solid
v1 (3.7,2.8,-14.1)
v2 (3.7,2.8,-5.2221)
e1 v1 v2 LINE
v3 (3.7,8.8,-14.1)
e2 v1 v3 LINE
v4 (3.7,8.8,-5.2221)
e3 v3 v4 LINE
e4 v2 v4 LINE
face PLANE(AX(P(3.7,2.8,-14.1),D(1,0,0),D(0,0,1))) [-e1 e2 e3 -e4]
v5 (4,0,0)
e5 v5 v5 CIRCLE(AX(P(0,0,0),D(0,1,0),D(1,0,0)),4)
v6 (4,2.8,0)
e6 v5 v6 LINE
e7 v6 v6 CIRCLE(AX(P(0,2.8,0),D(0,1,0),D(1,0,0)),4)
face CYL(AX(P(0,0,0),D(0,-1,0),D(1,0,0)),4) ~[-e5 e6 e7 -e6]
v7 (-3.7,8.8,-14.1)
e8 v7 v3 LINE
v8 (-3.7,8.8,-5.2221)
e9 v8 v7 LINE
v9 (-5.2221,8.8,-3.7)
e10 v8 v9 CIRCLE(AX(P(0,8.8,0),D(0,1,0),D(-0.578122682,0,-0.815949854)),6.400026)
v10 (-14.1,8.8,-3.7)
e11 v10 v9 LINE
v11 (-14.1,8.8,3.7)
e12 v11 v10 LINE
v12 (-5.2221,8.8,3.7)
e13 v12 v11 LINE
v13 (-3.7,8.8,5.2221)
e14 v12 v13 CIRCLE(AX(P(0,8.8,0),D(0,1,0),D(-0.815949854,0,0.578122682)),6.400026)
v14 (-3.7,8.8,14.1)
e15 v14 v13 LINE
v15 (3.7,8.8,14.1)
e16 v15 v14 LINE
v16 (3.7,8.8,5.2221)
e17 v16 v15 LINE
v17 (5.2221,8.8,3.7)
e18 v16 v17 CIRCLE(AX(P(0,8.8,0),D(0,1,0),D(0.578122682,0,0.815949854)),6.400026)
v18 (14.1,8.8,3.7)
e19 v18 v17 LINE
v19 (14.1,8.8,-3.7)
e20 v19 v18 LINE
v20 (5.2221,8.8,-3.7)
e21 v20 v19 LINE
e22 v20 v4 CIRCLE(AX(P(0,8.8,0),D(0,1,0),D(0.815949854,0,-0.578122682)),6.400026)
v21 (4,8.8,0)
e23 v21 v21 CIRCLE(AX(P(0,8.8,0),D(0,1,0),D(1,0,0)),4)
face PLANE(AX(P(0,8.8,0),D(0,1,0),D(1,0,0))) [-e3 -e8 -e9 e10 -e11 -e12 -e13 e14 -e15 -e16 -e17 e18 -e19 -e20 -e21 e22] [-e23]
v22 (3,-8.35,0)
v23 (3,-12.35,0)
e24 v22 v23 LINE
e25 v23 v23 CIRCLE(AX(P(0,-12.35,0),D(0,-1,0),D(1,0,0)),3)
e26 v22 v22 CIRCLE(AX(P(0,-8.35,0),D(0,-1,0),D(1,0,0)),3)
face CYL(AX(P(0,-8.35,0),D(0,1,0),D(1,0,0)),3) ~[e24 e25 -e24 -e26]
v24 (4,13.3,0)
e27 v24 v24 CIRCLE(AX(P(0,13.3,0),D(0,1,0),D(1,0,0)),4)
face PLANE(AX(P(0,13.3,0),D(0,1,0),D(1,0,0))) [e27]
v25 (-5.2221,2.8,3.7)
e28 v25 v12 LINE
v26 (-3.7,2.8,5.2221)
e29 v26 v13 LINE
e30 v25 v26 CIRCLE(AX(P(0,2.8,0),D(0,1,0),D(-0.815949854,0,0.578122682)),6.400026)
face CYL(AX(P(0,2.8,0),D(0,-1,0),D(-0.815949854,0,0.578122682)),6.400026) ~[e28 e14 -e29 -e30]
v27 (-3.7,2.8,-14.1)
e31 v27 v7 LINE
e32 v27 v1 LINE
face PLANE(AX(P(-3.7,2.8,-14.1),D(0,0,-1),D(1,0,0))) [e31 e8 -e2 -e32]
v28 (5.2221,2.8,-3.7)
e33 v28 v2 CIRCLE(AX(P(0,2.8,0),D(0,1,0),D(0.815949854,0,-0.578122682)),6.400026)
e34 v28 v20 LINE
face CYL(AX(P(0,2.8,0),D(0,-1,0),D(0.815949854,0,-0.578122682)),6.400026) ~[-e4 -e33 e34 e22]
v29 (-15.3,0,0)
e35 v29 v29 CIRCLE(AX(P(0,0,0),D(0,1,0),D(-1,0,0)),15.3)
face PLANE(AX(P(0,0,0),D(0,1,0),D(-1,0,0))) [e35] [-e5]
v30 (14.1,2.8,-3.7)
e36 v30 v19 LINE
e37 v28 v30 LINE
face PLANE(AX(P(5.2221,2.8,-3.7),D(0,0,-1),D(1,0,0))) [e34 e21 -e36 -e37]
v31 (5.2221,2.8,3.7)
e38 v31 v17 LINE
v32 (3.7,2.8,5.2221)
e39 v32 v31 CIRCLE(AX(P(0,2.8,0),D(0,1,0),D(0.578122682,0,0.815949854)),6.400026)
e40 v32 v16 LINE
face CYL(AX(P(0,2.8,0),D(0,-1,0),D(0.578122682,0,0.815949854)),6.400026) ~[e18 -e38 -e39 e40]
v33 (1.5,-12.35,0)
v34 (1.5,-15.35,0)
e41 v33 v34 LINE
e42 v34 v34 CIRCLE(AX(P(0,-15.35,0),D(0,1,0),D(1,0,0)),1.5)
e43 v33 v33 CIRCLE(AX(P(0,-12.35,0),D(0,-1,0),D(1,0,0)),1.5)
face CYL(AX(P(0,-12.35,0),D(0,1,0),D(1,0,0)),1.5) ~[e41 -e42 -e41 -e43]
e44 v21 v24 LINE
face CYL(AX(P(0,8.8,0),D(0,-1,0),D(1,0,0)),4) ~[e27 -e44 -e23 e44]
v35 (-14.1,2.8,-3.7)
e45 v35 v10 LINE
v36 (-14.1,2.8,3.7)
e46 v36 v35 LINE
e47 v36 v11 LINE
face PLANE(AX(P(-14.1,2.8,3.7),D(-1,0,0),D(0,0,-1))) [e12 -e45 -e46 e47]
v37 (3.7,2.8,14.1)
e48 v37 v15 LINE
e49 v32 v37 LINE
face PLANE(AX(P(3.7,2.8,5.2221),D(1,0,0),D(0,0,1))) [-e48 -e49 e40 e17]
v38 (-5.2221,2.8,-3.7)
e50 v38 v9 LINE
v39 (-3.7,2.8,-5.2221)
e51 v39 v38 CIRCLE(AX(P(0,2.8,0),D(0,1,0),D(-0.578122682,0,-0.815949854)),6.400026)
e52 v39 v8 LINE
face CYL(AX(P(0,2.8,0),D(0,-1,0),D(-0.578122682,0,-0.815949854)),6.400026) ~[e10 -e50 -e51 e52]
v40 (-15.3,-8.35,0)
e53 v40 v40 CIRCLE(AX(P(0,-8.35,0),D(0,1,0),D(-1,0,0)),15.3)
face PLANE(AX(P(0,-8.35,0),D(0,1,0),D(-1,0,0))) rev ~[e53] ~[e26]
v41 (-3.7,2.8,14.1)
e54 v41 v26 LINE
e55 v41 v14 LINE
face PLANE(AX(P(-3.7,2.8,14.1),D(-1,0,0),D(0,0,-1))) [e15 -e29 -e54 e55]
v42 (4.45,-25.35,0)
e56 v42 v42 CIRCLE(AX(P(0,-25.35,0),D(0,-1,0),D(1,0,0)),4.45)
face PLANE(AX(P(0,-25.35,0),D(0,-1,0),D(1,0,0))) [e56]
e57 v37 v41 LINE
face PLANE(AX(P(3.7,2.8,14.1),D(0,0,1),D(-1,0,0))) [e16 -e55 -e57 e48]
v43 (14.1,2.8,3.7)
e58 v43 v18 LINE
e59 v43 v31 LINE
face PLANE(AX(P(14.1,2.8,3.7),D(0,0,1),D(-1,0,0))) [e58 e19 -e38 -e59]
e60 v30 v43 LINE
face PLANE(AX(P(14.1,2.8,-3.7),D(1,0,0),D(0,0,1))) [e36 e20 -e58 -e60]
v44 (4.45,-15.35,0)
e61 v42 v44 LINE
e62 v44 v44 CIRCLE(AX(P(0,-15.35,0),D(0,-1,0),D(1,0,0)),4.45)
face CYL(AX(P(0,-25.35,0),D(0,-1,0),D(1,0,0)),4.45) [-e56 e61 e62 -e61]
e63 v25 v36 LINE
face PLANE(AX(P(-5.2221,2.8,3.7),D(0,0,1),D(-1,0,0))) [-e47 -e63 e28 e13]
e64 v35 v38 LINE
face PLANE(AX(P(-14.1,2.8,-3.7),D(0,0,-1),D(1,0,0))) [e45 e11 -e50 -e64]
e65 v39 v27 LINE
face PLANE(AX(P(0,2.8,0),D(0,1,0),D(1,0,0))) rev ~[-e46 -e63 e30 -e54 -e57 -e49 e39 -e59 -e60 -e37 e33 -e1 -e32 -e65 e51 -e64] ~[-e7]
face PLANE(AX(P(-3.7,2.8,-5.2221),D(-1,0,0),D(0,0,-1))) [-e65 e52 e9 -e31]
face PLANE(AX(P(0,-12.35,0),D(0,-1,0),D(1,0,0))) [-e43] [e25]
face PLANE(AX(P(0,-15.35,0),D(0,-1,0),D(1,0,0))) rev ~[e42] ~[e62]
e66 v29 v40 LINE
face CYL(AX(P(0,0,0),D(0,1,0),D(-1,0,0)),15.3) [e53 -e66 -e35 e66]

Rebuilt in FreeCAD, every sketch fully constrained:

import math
import FreeCAD as App
import Part
import Sketcher
from FreeCAD import Vector

doc = App.newDocument("Part")
params = doc.addObject("Spreadsheet::Sheet", "Params")
for row, (alias, value) in enumerate([
    ("sketch1_diameter", "30.6 mm"),
    ("pad1_length", "8.35 mm"),
    ("sketch2_diameter", "8 mm"),
    ("pad2_length", "2.8 mm"),
    ("sketch3_width", "7.4 mm"),
    ("sketch3_radius", "6.4 mm"),
    ("pad3_length", "6 mm"),
    ("sketch4_diameter", "8 mm"),
    ("pad4_length", "4.5 mm"),
    ("sketch5_diameter", "6 mm"),
    ("pad5_length", "4 mm"),
    ("sketch6_diameter", "3 mm"),
    ("pad6_length", "13 mm"),
    ("sketch7_diameter", "8.9 mm"),
    ("pad7_length", "10 mm"),
], start=1):
    params.set(f"A{row}", alias)
    params.set(f"B{row}", "=" + value)
    params.setAlias(f"B{row}", alias)

body = doc.addObject("PartDesign::Body", "Body")

# Sketch on XZ plane
sketch1 = doc.addObject("Sketcher::SketchObject", "Sketch")
body.addObject(sketch1)
sketch1.AttachmentSupport = (doc.XZ_Plane, [""])
sketch1.MapMode = "FlatFace"
sketch1.addGeometry(Part.Circle(Vector(0, 0, 0), Vector(0, 0, 1), 15.3), False)
sketch1.addConstraint([
    Sketcher.Constraint("Coincident", 0, 3, -1, 1),
    Sketcher.Constraint("Diameter", 0, 30.6),
])
sketch1.setExpression("Constraints[1]", "Params.sketch1_diameter")
pad1 = doc.addObject("PartDesign::Pad", "Pad")
body.addObject(pad1)
pad1.Profile = sketch1
pad1.setExpression("Length", "Params.pad1_length")

# Sketch on XZ plane
sketch2 = doc.addObject("Sketcher::SketchObject", "Sketch001")
body.addObject(sketch2)
sketch2.AttachmentSupport = (doc.XZ_Plane, [""])
sketch2.MapMode = "FlatFace"
sketch2.addGeometry(Part.Circle(Vector(0, 0, 0), Vector(0, 0, 1), 4), False)
sketch2.addConstraint([
    Sketcher.Constraint("Coincident", 0, 3, -1, 1),
    Sketcher.Constraint("Diameter", 0, 8.0),
])
sketch2.setExpression("Constraints[1]", "Params.sketch2_diameter")
pad2 = doc.addObject("PartDesign::Pad", "Pad001")
body.addObject(pad2)
pad2.Profile = sketch2
pad2.setExpression("Length", "Params.pad2_length")
pad2.Reversed = True

# Sketch on XZ plane
sketch3 = doc.addObject("Sketcher::SketchObject", "Sketch002")
body.addObject(sketch3)
sketch3.AttachmentSupport = (doc.XZ_Plane, [""])
sketch3.MapMode = "FlatFace"
sketch3.AttachmentOffset = App.Placement(Vector(0, 0, -2.8), App.Rotation())
sketch3.addGeometry([
    Part.LineSegment(Vector(3.7, -14.1, 0), Vector(-3.7, -14.1, 0)),  # 0
    Part.LineSegment(Vector(-3.7, -14.1, 0), Vector(-3.7, -5.2221, 0)),  # 1
    Part.ArcOfCircle(Part.Circle(Vector(0, 0, 0), Vector(0, 0, 1), 6.400026), math.radians(-144.68139), math.radians(-125.31861)),  # 2
    Part.LineSegment(Vector(-5.2221, -3.7, 0), Vector(-14.1, -3.7, 0)),  # 3
    Part.LineSegment(Vector(-14.1, -3.7, 0), Vector(-14.1, 3.7, 0)),  # 4
    Part.LineSegment(Vector(-14.1, 3.7, 0), Vector(-5.2221, 3.7, 0)),  # 5
    Part.ArcOfCircle(Part.Circle(Vector(0, 0, 0), Vector(0, 0, 1), 6.400026), math.radians(125.31861), math.radians(144.68139)),  # 6
    Part.LineSegment(Vector(-3.7, 5.2221, 0), Vector(-3.7, 14.1, 0)),  # 7
    Part.LineSegment(Vector(-3.7, 14.1, 0), Vector(3.7, 14.1, 0)),  # 8
    Part.LineSegment(Vector(3.7, 14.1, 0), Vector(3.7, 5.2221, 0)),  # 9
    Part.ArcOfCircle(Part.Circle(Vector(0, 0, 0), Vector(0, 0, 1), 6.400026), math.radians(35.31861), math.radians(54.68139)),  # 10
    Part.LineSegment(Vector(5.2221, 3.7, 0), Vector(14.1, 3.7, 0)),  # 11
    Part.LineSegment(Vector(14.1, 3.7, 0), Vector(14.1, -3.7, 0)),  # 12
    Part.LineSegment(Vector(14.1, -3.7, 0), Vector(5.2221, -3.7, 0)),  # 13
    Part.ArcOfCircle(Part.Circle(Vector(0, 0, 0), Vector(0, 0, 1), 6.400026), math.radians(-54.68139), math.radians(-35.31861)),  # 14
    Part.LineSegment(Vector(3.7, -5.2221, 0), Vector(3.7, -14.1, 0)),  # 15
], False)
sketch3.addConstraint([
    Sketcher.Constraint("Coincident", 0, 2, 1, 1),
    Sketcher.Constraint("Coincident", 1, 2, 2, 2),
    Sketcher.Constraint("Coincident", 2, 1, 3, 1),
    Sketcher.Constraint("Coincident", 3, 2, 4, 1),
    Sketcher.Constraint("Coincident", 4, 2, 5, 1),
    Sketcher.Constraint("Coincident", 5, 2, 6, 2),
    Sketcher.Constraint("Coincident", 6, 1, 7, 1),
    Sketcher.Constraint("Coincident", 7, 2, 8, 1),
    Sketcher.Constraint("Coincident", 8, 2, 9, 1),
    Sketcher.Constraint("Coincident", 9, 2, 10, 2),
    Sketcher.Constraint("Coincident", 10, 1, 11, 1),
    Sketcher.Constraint("Coincident", 11, 2, 12, 1),
    Sketcher.Constraint("Coincident", 12, 2, 13, 1),
    Sketcher.Constraint("Coincident", 13, 2, 14, 2),
    Sketcher.Constraint("Coincident", 14, 1, 15, 1),
    Sketcher.Constraint("Coincident", 15, 2, 0, 1),
    Sketcher.Constraint("Horizontal", 0),
    Sketcher.Constraint("Vertical", 1),
    Sketcher.Constraint("Horizontal", 3),
    Sketcher.Constraint("Vertical", 4),
    Sketcher.Constraint("Horizontal", 5),
    Sketcher.Constraint("Vertical", 7),
    Sketcher.Constraint("Horizontal", 8),
    Sketcher.Constraint("Vertical", 9),
    Sketcher.Constraint("Horizontal", 11),
    Sketcher.Constraint("Vertical", 12),
    Sketcher.Constraint("Horizontal", 13),
    Sketcher.Constraint("Vertical", 15),
    Sketcher.Constraint("Coincident", 2, 3, -1, 1),
    Sketcher.Constraint("Coincident", 6, 3, -1, 1),
    Sketcher.Constraint("Coincident", 10, 3, -1, 1),
    Sketcher.Constraint("Coincident", 14, 3, -1, 1),
    Sketcher.Constraint("Equal", 2, 6),
    Sketcher.Constraint("Equal", 6, 10),
    Sketcher.Constraint("Equal", 10, 14),
    Sketcher.Constraint("Symmetric", 0, 2, 8, 2, -1, 1),
    Sketcher.Constraint("Symmetric", 3, 2, 11, 2, -1, 1),
    Sketcher.Constraint("Horizontal", 6, 1, 9, 2),
    Sketcher.Constraint("Horizontal", 5, 2, 10, 1),
    Sketcher.Constraint("Horizontal", 3, 2, 12, 2),
    Sketcher.Constraint("Horizontal", 1, 2, 14, 1),
    Sketcher.Constraint("Equal", 13, 1),
    Sketcher.Constraint("Equal", 8, 4),
    Sketcher.Constraint("DistanceX", 0, 2, 0, 1, 7.4),
    Sketcher.Constraint("Radius", 2, 6.4),
    Sketcher.Constraint("DistanceY", 0, 2, -1, 1, 14.1),
])
sketch3.setExpression("Constraints[43]", "Params.sketch3_width")
sketch3.setExpression("Constraints[44]", "Params.sketch3_radius")
pad3 = doc.addObject("PartDesign::Pad", "Pad002")
body.addObject(pad3)
pad3.Profile = sketch3
pad3.setExpression("Length", "Params.pad3_length")
pad3.Reversed = True

# Sketch on XZ plane
sketch4 = doc.addObject("Sketcher::SketchObject", "Sketch003")
body.addObject(sketch4)
sketch4.AttachmentSupport = (doc.XZ_Plane, [""])
sketch4.MapMode = "FlatFace"
sketch4.AttachmentOffset = App.Placement(Vector(0, 0, -8.8), App.Rotation())
sketch4.addGeometry(Part.Circle(Vector(0, 0, 0), Vector(0, 0, 1), 4), False)
sketch4.addConstraint([
    Sketcher.Constraint("Coincident", 0, 3, -1, 1),
    Sketcher.Constraint("Diameter", 0, 8.0),
])
sketch4.setExpression("Constraints[1]", "Params.sketch4_diameter")
pad4 = doc.addObject("PartDesign::Pad", "Pad003")
body.addObject(pad4)
pad4.Profile = sketch4
pad4.setExpression("Length", "Params.pad4_length")
pad4.Reversed = True

# Sketch on XZ plane
sketch5 = doc.addObject("Sketcher::SketchObject", "Sketch004")
body.addObject(sketch5)
sketch5.AttachmentSupport = (doc.XZ_Plane, [""])
sketch5.MapMode = "FlatFace"
sketch5.AttachmentOffset = App.Placement(Vector(0, 0, 8.35), App.Rotation())
sketch5.addGeometry(Part.Circle(Vector(0, 0, 0), Vector(0, 0, 1), 3), False)
sketch5.addConstraint([
    Sketcher.Constraint("Coincident", 0, 3, -1, 1),
    Sketcher.Constraint("Diameter", 0, 6.0),
])
sketch5.setExpression("Constraints[1]", "Params.sketch5_diameter")
pad5 = doc.addObject("PartDesign::Pad", "Pad004")
body.addObject(pad5)
pad5.Profile = sketch5
pad5.setExpression("Length", "Params.pad5_length")

# Sketch on XZ plane
sketch6 = doc.addObject("Sketcher::SketchObject", "Sketch005")
body.addObject(sketch6)
sketch6.AttachmentSupport = (doc.XZ_Plane, [""])
sketch6.MapMode = "FlatFace"
sketch6.AttachmentOffset = App.Placement(Vector(0, 0, 12.35), App.Rotation())
sketch6.addGeometry(Part.Circle(Vector(0, 0, 0), Vector(0, 0, 1), 1.5), False)
sketch6.addConstraint([
    Sketcher.Constraint("Coincident", 0, 3, -1, 1),
    Sketcher.Constraint("Diameter", 0, 3.0),
])
sketch6.setExpression("Constraints[1]", "Params.sketch6_diameter")
pad6 = doc.addObject("PartDesign::Pad", "Pad005")
body.addObject(pad6)
pad6.Profile = sketch6
pad6.setExpression("Length", "Params.pad6_length")

# Sketch on XZ plane
sketch7 = doc.addObject("Sketcher::SketchObject", "Sketch006")
body.addObject(sketch7)
sketch7.AttachmentSupport = (doc.XZ_Plane, [""])
sketch7.MapMode = "FlatFace"
sketch7.AttachmentOffset = App.Placement(Vector(0, 0, 25.35), App.Rotation())
sketch7.addGeometry(Part.Circle(Vector(0, 0, 0), Vector(0, 0, 1), 4.45), False)
sketch7.addConstraint([
    Sketcher.Constraint("Coincident", 0, 3, -1, 1),
    Sketcher.Constraint("Diameter", 0, 8.9),
])
sketch7.setExpression("Constraints[1]", "Params.sketch7_diameter")
pad7 = doc.addObject("PartDesign::Pad", "Pad006")
body.addObject(pad7)
pad7.Profile = sketch7
pad7.setExpression("Length", "Params.pad7_length")
pad7.Reversed = True

doc.recompute()
